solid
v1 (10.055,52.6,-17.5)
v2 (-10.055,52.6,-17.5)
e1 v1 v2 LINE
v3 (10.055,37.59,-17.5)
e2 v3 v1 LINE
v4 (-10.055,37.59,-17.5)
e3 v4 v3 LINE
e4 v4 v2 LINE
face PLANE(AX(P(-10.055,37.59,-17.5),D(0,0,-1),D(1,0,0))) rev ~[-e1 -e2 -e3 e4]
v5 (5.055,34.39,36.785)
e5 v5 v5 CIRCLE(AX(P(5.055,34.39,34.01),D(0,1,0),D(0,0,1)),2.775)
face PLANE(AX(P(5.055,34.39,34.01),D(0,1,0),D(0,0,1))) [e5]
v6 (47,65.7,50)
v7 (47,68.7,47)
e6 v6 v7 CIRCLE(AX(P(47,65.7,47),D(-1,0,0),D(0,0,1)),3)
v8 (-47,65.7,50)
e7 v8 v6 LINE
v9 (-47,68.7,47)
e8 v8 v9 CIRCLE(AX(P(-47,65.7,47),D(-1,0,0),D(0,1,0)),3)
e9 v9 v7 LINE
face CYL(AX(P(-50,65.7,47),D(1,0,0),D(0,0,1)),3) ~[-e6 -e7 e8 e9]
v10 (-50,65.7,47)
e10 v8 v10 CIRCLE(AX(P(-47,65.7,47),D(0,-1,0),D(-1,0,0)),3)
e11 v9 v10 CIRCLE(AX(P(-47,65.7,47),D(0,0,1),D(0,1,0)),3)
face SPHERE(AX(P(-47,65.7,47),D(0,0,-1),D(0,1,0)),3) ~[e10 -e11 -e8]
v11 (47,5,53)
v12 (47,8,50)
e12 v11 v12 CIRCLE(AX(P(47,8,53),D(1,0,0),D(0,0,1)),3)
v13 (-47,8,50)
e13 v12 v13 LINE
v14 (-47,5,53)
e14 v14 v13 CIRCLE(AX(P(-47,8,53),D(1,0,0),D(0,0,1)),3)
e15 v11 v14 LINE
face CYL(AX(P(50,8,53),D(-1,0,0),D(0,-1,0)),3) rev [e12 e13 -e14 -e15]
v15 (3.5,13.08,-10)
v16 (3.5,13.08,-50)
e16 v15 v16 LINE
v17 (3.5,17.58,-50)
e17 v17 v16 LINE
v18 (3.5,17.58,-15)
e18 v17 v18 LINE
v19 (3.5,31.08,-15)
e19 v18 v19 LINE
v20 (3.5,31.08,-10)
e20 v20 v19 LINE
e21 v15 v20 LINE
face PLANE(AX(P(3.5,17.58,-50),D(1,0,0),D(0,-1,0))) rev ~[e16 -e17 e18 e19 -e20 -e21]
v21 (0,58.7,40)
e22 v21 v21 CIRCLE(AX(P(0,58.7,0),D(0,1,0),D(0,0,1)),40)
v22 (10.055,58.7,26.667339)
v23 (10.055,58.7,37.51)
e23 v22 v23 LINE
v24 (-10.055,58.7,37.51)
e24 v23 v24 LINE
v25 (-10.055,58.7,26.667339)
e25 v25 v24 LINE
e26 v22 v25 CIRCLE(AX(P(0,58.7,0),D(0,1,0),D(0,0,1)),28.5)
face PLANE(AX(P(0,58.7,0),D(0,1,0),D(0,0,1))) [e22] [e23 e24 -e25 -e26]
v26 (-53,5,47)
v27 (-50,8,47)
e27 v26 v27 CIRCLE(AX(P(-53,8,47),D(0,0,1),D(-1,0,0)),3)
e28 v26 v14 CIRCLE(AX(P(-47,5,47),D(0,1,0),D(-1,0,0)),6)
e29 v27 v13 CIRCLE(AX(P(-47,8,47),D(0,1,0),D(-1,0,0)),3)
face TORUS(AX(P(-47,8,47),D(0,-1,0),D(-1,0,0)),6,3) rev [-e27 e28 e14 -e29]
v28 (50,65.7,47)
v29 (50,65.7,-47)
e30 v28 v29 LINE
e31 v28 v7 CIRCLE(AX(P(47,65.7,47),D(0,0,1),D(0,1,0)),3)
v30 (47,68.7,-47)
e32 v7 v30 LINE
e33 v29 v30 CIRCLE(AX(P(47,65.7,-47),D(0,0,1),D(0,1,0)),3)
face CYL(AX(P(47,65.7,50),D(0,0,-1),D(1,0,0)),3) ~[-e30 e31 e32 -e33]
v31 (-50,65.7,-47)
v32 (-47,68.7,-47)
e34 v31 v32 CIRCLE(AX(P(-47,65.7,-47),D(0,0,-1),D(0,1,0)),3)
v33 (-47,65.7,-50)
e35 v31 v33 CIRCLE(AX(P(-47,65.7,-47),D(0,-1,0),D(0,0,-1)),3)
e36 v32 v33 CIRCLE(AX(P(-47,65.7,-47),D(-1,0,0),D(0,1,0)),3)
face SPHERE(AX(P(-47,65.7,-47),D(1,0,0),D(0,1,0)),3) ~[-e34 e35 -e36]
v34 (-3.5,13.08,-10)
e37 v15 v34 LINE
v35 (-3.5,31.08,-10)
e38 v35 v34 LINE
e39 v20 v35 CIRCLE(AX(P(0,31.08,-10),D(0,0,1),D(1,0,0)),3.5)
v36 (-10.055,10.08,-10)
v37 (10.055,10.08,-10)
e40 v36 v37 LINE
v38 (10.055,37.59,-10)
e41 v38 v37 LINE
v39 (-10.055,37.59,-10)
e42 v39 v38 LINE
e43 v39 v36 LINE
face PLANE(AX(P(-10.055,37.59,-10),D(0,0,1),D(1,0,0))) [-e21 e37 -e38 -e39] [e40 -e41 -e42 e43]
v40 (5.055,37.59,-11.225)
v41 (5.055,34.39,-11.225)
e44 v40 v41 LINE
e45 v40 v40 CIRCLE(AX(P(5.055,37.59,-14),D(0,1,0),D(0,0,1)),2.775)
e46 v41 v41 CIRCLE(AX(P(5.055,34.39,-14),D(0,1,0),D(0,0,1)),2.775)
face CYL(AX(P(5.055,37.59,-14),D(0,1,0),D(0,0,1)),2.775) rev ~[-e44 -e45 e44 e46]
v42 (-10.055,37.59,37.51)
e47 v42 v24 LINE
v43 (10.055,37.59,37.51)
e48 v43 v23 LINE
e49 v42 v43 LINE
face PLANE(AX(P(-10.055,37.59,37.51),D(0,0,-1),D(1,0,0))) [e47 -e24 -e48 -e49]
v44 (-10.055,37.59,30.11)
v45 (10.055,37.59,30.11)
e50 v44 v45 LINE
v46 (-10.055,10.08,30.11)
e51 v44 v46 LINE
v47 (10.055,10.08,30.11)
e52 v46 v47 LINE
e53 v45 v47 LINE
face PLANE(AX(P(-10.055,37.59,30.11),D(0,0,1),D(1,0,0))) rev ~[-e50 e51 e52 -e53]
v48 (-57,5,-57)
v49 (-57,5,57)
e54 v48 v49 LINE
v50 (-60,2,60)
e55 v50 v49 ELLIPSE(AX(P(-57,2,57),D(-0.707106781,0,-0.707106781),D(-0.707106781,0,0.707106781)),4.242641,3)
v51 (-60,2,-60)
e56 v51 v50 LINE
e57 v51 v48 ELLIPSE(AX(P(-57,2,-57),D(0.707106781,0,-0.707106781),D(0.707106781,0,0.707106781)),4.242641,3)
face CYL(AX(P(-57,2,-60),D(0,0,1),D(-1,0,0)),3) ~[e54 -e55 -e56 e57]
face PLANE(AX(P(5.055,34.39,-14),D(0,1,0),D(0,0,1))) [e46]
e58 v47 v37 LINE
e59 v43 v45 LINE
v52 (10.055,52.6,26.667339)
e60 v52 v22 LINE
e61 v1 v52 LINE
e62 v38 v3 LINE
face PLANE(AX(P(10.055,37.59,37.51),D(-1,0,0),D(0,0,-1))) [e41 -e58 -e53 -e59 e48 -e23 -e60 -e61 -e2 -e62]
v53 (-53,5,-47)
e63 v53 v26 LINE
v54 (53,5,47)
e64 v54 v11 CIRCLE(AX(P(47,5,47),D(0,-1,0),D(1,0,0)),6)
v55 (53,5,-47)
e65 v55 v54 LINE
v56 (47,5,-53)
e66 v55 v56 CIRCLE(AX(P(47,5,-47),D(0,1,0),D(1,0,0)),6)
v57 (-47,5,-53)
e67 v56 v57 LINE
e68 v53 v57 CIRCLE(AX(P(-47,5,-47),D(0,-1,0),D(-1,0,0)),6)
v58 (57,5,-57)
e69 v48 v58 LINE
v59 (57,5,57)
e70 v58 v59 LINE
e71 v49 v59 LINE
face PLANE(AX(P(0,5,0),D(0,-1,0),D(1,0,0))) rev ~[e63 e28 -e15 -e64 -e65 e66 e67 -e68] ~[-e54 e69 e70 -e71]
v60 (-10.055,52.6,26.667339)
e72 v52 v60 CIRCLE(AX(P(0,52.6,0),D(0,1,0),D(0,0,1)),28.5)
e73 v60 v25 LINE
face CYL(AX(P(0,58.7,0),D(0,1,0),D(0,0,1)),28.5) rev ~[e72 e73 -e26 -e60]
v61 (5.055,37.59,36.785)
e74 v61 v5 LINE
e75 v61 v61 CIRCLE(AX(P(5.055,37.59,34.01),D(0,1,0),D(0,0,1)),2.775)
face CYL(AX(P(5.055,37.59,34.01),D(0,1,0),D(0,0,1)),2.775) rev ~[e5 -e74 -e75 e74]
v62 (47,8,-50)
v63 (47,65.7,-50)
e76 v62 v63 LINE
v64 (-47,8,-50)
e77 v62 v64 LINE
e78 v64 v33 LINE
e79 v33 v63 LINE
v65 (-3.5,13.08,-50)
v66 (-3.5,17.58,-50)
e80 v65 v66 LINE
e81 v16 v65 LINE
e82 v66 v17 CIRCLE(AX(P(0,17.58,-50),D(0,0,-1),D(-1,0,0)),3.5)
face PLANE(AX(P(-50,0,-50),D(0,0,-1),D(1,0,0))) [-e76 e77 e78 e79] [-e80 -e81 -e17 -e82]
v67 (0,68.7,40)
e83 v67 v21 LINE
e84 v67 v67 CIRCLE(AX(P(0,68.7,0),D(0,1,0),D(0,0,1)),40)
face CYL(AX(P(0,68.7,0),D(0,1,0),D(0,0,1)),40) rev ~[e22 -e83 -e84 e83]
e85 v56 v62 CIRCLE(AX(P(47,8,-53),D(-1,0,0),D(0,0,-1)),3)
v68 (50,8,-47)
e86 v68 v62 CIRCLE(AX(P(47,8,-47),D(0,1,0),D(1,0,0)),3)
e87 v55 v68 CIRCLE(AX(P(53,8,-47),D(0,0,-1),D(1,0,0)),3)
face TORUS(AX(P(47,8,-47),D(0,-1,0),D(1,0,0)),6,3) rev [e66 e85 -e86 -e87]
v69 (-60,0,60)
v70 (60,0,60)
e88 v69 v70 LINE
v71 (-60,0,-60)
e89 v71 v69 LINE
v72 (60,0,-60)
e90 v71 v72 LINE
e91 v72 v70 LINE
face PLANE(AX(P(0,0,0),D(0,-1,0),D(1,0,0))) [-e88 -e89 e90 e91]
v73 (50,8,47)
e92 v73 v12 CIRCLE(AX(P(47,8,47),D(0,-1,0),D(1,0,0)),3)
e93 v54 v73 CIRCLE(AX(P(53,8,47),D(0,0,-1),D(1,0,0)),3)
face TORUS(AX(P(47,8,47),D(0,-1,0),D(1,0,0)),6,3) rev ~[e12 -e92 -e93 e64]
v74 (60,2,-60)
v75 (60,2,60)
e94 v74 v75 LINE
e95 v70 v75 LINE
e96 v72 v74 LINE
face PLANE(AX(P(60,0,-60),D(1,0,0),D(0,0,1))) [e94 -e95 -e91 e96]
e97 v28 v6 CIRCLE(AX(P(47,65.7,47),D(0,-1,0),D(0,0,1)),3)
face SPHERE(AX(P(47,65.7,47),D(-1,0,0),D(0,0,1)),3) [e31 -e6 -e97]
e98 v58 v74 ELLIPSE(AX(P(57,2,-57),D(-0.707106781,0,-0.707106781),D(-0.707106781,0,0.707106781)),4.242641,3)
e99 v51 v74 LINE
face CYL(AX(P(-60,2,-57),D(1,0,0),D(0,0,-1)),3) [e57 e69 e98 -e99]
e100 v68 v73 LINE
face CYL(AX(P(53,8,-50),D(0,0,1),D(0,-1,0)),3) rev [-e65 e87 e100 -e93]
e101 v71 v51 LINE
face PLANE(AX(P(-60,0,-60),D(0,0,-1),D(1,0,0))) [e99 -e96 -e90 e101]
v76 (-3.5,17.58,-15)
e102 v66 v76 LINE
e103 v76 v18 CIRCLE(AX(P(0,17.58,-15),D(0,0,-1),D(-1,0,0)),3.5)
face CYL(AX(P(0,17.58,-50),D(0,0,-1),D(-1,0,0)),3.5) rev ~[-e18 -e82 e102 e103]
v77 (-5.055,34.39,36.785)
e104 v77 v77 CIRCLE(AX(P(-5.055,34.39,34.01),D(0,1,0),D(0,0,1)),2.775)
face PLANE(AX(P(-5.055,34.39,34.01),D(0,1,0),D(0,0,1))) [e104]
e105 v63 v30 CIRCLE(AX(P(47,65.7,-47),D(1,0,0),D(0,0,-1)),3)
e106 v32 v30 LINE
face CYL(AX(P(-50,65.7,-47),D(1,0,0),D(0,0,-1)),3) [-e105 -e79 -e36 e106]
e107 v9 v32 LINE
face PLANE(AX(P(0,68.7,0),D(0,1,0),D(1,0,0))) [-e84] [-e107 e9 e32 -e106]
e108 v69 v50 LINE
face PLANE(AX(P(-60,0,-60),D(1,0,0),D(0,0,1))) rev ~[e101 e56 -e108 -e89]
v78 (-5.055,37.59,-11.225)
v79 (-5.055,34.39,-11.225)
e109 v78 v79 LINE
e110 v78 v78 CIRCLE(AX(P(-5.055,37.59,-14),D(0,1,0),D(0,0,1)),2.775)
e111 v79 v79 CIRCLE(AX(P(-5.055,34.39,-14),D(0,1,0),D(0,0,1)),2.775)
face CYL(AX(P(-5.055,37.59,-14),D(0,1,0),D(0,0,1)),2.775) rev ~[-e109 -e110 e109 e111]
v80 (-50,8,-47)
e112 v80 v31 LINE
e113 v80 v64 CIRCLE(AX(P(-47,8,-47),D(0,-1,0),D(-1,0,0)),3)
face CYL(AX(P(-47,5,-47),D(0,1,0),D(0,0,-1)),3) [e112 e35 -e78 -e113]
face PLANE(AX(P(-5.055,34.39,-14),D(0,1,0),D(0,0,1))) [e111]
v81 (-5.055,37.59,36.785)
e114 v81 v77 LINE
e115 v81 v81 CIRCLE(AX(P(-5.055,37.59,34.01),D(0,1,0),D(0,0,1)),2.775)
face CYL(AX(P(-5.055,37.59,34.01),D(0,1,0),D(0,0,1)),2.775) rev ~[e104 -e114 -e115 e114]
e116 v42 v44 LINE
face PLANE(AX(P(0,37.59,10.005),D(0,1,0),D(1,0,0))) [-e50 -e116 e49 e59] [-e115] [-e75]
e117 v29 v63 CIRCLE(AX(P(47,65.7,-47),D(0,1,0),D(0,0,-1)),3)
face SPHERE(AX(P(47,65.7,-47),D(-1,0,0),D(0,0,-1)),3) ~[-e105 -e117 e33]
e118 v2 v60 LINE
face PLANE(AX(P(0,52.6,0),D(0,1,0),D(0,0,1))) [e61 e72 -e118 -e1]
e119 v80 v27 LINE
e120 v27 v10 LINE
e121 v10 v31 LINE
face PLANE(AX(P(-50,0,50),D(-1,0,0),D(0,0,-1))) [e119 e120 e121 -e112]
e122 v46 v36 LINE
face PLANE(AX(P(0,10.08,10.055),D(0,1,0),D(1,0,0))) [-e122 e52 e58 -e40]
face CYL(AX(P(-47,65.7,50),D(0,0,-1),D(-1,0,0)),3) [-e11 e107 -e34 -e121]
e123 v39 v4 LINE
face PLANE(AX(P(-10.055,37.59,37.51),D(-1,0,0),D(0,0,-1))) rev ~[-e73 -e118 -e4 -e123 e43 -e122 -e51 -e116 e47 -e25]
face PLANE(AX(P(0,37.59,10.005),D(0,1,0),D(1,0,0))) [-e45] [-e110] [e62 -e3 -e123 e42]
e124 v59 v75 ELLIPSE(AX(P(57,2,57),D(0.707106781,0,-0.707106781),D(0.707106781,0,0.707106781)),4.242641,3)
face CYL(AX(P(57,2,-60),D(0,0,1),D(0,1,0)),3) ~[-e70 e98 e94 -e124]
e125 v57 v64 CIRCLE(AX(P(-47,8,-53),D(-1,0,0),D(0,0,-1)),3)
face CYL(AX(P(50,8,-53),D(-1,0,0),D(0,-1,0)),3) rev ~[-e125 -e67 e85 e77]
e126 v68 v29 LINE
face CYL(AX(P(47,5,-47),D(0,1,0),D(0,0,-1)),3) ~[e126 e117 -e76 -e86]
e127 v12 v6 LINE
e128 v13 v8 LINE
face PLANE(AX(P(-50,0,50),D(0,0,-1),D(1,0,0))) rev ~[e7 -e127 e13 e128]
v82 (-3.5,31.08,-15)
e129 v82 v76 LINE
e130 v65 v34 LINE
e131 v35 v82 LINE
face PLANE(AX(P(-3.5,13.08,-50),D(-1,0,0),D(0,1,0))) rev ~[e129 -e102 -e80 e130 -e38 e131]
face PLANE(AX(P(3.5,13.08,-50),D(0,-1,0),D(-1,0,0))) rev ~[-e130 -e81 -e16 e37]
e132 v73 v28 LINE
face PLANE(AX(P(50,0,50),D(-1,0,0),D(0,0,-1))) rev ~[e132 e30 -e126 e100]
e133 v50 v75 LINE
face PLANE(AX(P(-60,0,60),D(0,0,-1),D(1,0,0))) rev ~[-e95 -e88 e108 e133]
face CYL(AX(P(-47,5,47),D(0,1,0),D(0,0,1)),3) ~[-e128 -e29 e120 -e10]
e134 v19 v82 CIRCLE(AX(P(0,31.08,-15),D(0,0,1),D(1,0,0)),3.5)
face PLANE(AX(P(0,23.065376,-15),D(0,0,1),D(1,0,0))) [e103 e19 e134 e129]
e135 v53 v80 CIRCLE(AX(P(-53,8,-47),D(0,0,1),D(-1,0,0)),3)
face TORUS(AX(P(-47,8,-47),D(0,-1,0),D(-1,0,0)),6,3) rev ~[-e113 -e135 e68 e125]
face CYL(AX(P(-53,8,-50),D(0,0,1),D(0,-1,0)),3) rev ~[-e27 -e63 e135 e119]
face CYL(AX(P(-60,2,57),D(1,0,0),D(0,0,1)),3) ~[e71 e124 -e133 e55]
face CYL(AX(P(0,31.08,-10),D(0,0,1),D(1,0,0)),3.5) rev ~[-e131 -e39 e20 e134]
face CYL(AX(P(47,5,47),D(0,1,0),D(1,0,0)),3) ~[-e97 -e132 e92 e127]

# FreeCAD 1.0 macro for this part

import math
import FreeCAD as App
import Part
import Sketcher
Q = App.Units.Quantity


def edges_at(feature, points):
    """Names of the edges that pass closest to the given points."""
    edges = feature.Shape.Edges
    near = lambda p: min(range(len(edges)), key=lambda i: edges[i].distToShape(Part.Vertex(*p))[0])
    return sorted({f"Edge{near(p) + 1}" for p in points})


def add_polygon(sketch, points):
    """Adds a closed chain of lines whose ends are joined by coincident constraints."""
    first, n = sketch.GeometryCount, len(points)
    for a, b in zip(points, points[1:] + points[:1]):
        sketch.addGeometry(Part.LineSegment(App.Vector(*a, 0), App.Vector(*b, 0)), False)
    for i in range(n):
        sketch.addConstraint(Sketcher.Constraint("Coincident", first + i, 2, first + (i + 1) % n, 1))

doc = App.newDocument("Part")
body = doc.addObject("PartDesign::Body", "Body")

# Sketch on XZ plane
sketch1 = body.newObject("Sketcher::SketchObject", "Sketch")
sketch1.AttachmentSupport = (doc.getObject("XZ_Plane"), [""])
sketch1.MapMode = "FlatFace"
add_polygon(sketch1, [(-50, -50), (-50, 50), (50, 50), (50, -50)])  # lines 0-3
sketch1.addConstraint([
    Sketcher.Constraint("Vertical", 0),
    Sketcher.Constraint("Horizontal", 1),
    Sketcher.Constraint("Vertical", 2),
    Sketcher.Constraint("Horizontal", 3),
    Sketcher.Constraint("Symmetric", 0, 2, 2, 2, -1, 1),
    Sketcher.Constraint("Equal", 3, 0),
    Sketcher.Constraint("DistanceX", 1, 1, 1, 2, Q("100 mm")),
])
pad1 = body.newObject("PartDesign::Pad", "Pad")
pad1.Profile = sketch1
pad1.Length = 68.7
pad1.Reversed = True

# Sketch on XZ plane
sketch2 = body.newObject("Sketcher::SketchObject", "Sketch001")
sketch2.AttachmentSupport = (doc.getObject("XZ_Plane"), [""])
sketch2.MapMode = "FlatFace"
sketch2.AttachmentOffset = App.Placement(App.Vector(0, 0, -68.7), App.Rotation())
sketch2.addGeometry(Part.Circle(App.Vector(0, 0, 0), App.Vector(0, 0, 1), 40), False)
sketch2.addConstraint([
    Sketcher.Constraint("Coincident", 0, 3, -1, 1),
    Sketcher.Constraint("Diameter", 0, Q("80 mm")),
])
pocket1 = body.newObject("PartDesign::Pocket", "Pocket")
pocket1.Profile = sketch2
pocket1.Length = 10
pocket1.Reversed = True

# Sketch on XZ plane
sketch3 = body.newObject("Sketcher::SketchObject", "Sketch002")
sketch3.AttachmentSupport = (doc.getObject("XZ_Plane"), [""])
sketch3.MapMode = "FlatFace"
sketch3.AttachmentOffset = App.Placement(App.Vector(0, 0, -58.7), App.Rotation())
sketch3.addGeometry(Part.Circle(App.Vector(0, 0, 0), App.Vector(0, 0, 1), 28), False)
sketch3.addConstraint([
    Sketcher.Constraint("Coincident", 0, 3, -1, 1),
    Sketcher.Constraint("Diameter", 0, Q("57 mm")),
])
pocket2 = body.newObject("PartDesign::Pocket", "Pocket001")
pocket2.Profile = sketch3
pocket2.Length = 6.1
pocket2.Reversed = True

# Sketch on XZ plane
sketch4 = body.newObject("Sketcher::SketchObject", "Sketch003")
sketch4.AttachmentSupport = (doc.getObject("XZ_Plane"), [""])
sketch4.MapMode = "FlatFace"
sketch4.AttachmentOffset = App.Placement(App.Vector(0, 0, -52.6), App.Rotation())
add_polygon(sketch4, [(-10, -18), (-10, 38), (10, 38), (10, -18)])  # lines 0-3
sketch4.addConstraint([
    Sketcher.Constraint("Vertical", 0),
    Sketcher.Constraint("Horizontal", 1),
    Sketcher.Constraint("Vertical", 2),
    Sketcher.Constraint("Horizontal", 3),
    Sketcher.Constraint("DistanceX", 1, 1, 1, 2, Q("20.11 mm")),
    Sketcher.Constraint("DistanceY", 0, 1, 0, 2, Q("55.01 mm")),
    Sketcher.Constraint("DistanceY", 2, 2, -1, 1, Q("17.5 mm")),
    Sketcher.Constraint("DistanceX", 0, 2, -1, 1, Q("10.055 mm")),
])
pocket3 = body.newObject("PartDesign::Pocket", "Pocket002")
pocket3.Profile = sketch4
pocket3.Type = "TwoLengths"
pocket3.Length = 89.129223
pocket3.Length2 = 15.01

# Sketch on XZ plane
sketch5 = body.newObject("Sketcher::SketchObject", "Sketch004")
sketch5.AttachmentSupport = (doc.getObject("XZ_Plane"), [""])
sketch5.MapMode = "FlatFace"
sketch5.AttachmentOffset = App.Placement(App.Vector(0, 0, -37.59), App.Rotation())
add_polygon(sketch5, [(-10, -10), (-10, 30), (10, 30), (10, -10)])  # lines 0-3
sketch5.addConstraint([
    Sketcher.Constraint("Vertical", 0),
    Sketcher.Constraint("Horizontal", 1),
    Sketcher.Constraint("Vertical", 2),
    Sketcher.Constraint("Horizontal", 3),
    Sketcher.Constraint("DistanceY", 2, 2, -1, 1, Q("10 mm")),
    Sketcher.Constraint("DistanceX", 1, 1, 1, 2, Q("20.11 mm")),
    Sketcher.Constraint("DistanceY", 0, 1, 0, 2, Q("40.11 mm")),
    Sketcher.Constraint("DistanceX", 0, 2, -1, 1, Q("10.055 mm")),
])
pocket4 = body.newObject("PartDesign::Pocket", "Pocket003")
pocket4.Profile = sketch5
pocket4.Length = 27.51
pocket4.Reversed = True

# Sketch on XY plane
sketch6 = body.newObject("Sketcher::SketchObject", "Sketch005")
sketch6.AttachmentSupport = (doc.getObject("XY_Plane"), [""])
sketch6.MapMode = "FlatFace"
sketch6.AttachmentOffset = App.Placement(App.Vector(0, 0, -50), App.Rotation())
sketch6.addGeometry([
    Part.LineSegment(App.Vector(3.5, 13.1, 0), App.Vector(-3.5, 13.1, 0)),
    Part.LineSegment(App.Vector(-3.5, 13.1, 0), App.Vector(-3.5, 17.6, 0)),
    Part.ArcOfCircle(Part.Circle(App.Vector(0, 17.6, 0), App.Vector(0, 0, 1), 3.5), math.radians(0), math.radians(180)),
    Part.LineSegment(App.Vector(3.5, 17.6, 0), App.Vector(3.5, 13.1, 0)),
], False)
sketch6.addConstraint([
    Sketcher.Constraint("Coincident", 0, 2, 1, 1),
    Sketcher.Constraint("Tangent", 1, 2, 2, 2),
    Sketcher.Constraint("Tangent", 2, 1, 3, 1),
    Sketcher.Constraint("Coincident", 3, 2, 0, 1),
    Sketcher.Constraint("Horizontal", 0),
    Sketcher.Constraint("Vertical", 1),
    Sketcher.Constraint("Vertical", 3),
    Sketcher.Constraint("PointOnObject", 2, 3, -2),
    Sketcher.Constraint("Radius", 2, Q("3.5 mm")),
    Sketcher.Constraint("DistanceY", 1, 1, 1, 2, Q("4.5 mm")),
    Sketcher.Constraint("DistanceY", -1, 1, 2, 3, Q("17.58 mm")),
])
pocket5 = body.newObject("PartDesign::Pocket", "Pocket004")
pocket5.Profile = sketch6
pocket5.Type = "UpToFirst"
pocket5.Reversed = True

# Sketch on XZ plane
sketch7 = body.newObject("Sketcher::SketchObject", "Sketch006")
sketch7.AttachmentSupport = (doc.getObject("XZ_Plane"), [""])
sketch7.MapMode = "FlatFace"
sketch7.AttachmentOffset = App.Placement(App.Vector(0, 0, -37.59), App.Rotation())
sketch7.addGeometry([
    Part.Circle(App.Vector(5.1, 34, 0), App.Vector(0, 0, 1), 2.8),
    Part.Circle(App.Vector(-5.1, 34, 0), App.Vector(0, 0, 1), 2.8),
    Part.Circle(App.Vector(-5.1, -14, 0), App.Vector(0, 0, 1), 2.8),
    Part.Circle(App.Vector(5.1, -14, 0), App.Vector(0, 0, 1), 2.8),
], False)
sketch7.addConstraint([
    Sketcher.Constraint("Equal", 0, 1),
    Sketcher.Constraint("Equal", 1, 2),
    Sketcher.Constraint("Equal", 2, 3),
    Sketcher.Constraint("Symmetric", 0, 3, 1, 3, -2),
    Sketcher.Constraint("Symmetric", 2, 3, 3, 3, -2),
    Sketcher.Constraint("Vertical", 1, 3, 2, 3),
    Sketcher.Constraint("Diameter", 0, Q("5.55 mm")),
    Sketcher.Constraint("DistanceY", 2, 3, -1, 1, Q("14 mm")),
    Sketcher.Constraint("DistanceY", -1, 1, 0, 3, Q("34.01 mm")),
    Sketcher.Constraint("DistanceX", 1, 3, 0, 3, Q("10.11 mm")),
])
pocket6 = body.newObject("PartDesign::Pocket", "Pocket005")
pocket6.Profile = sketch7
pocket6.Length = 3.2
pocket6.Reversed = True

# Sketch on XY plane
sketch8 = body.newObject("Sketcher::SketchObject", "Sketch007")
sketch8.AttachmentSupport = (doc.getObject("XY_Plane"), [""])
sketch8.MapMode = "FlatFace"
sketch8.AttachmentOffset = App.Placement(App.Vector(0, 0, -10), App.Rotation())
sketch8.addGeometry([
    Part.LineSegment(App.Vector(-3.5, 13.1, 0), App.Vector(3.5, 13.1, 0)),
    Part.LineSegment(App.Vector(3.5, 13.1, 0), App.Vector(3.5, 31.1, 0)),
    Part.ArcOfCircle(Part.Circle(App.Vector(0, 31.1, 0), App.Vector(0, 0, 1), 3.5), math.radians(0), math.radians(180)),
    Part.LineSegment(App.Vector(-3.5, 31.1, 0), App.Vector(-3.5, 13.1, 0)),
], False)
sketch8.addConstraint([
    Sketcher.Constraint("Coincident", 0, 2, 1, 1),
    Sketcher.Constraint("Tangent", 1, 2, 2, 1),
    Sketcher.Constraint("Tangent", 2, 2, 3, 1),
    Sketcher.Constraint("Coincident", 3, 2, 0, 1),
    Sketcher.Constraint("Horizontal", 0),
    Sketcher.Constraint("Vertical", 1),
    Sketcher.Constraint("Vertical", 3),
    Sketcher.Constraint("PointOnObject", 2, 3, -2),
    Sketcher.Constraint("Radius", 2, Q("3.5 mm")),
    Sketcher.Constraint("DistanceY", 1, 1, 1, 2, Q("18 mm")),
    Sketcher.Constraint("DistanceY", -1, 1, 2, 3, Q("31.08 mm")),
])
pocket7 = body.newObject("PartDesign::Pocket", "Pocket006")
pocket7.Profile = sketch8
pocket7.Length = 5

# Sketch on XZ plane
sketch9 = body.newObject("Sketcher::SketchObject", "Sketch008")
sketch9.AttachmentSupport = (doc.getObject("XZ_Plane"), [""])
sketch9.MapMode = "FlatFace"
add_polygon(sketch9, [(-60, 60), (-60, -60), (60, -60), (60, 60)])  # lines 0-3
sketch9.addConstraint([
    Sketcher.Constraint("Vertical", 0),
    Sketcher.Constraint("Horizontal", 1),
    Sketcher.Constraint("Vertical", 2),
    Sketcher.Constraint("Horizontal", 3),
    Sketcher.Constraint("Symmetric", 0, 2, 2, 2, -1, 1),
    Sketcher.Constraint("Equal", 3, 0),
    Sketcher.Constraint("DistanceX", 1, 1, 1, 2, Q("120 mm")),
])
pad2 = body.newObject("PartDesign::Pad", "Pad001")
pad2.Profile = sketch9
pad2.Length = 5
pad2.Reversed = True
doc.recompute()

fillet = body.newObject("PartDesign::Fillet", "Fillet")
fillet.Base = (pad2, edges_at(pad2, [
    (-50, 5, 0),
    (50, 5, 0),
    (0, 5, 50),
    (60, 5, 0),
    (0, 5, -60),
    (-60, 5, 0),
    (0, 5, 60),
    (0, 5, -50),
    (0, 68.7, -50),
    (-50, 68.7, 0),
    (0, 68.7, 50),
    (-50, 36.85, 50),
    (-50, 36.85, -50),
    (50, 36.85, -50),
    (50, 36.85, 50),
    (50, 68.7, 0),
]))
fillet.Radius = 3

doc.recompute()
